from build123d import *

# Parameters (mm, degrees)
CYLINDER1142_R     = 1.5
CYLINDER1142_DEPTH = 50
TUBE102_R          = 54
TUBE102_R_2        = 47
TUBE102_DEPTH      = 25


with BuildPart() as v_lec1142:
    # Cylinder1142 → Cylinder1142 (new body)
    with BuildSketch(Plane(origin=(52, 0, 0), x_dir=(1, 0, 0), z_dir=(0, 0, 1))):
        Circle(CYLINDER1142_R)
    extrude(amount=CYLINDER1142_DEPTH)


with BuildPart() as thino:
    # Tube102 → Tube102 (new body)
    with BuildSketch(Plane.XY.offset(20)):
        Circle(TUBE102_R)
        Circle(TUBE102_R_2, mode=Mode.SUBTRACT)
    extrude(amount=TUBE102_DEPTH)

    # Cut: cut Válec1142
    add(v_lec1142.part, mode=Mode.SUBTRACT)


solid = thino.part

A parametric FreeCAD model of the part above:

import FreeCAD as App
import Part
import Sketcher

V = App.Vector
Q = App.Units.Quantity

doc = App.newDocument("Part")
body = doc.addObject("PartDesign::Body", "Body")

# Sketch on XY plane
sketch1 = body.newObject("Sketcher::SketchObject", "Sketch")
sketch1.AttachmentSupport = (doc.getObject("XY_Plane"), [""])
sketch1.MapMode = "FlatFace"
sketch1.addGeometry(Part.Circle(V(52, 0, 0), V(0, 0, 1), 1.5), False)
sketch1.addConstraint([
    Sketcher.Constraint("PointOnObject", 0, 3, -1),
    Sketcher.Constraint("Diameter", 0, Q("3 mm")),
    Sketcher.Constraint("DistanceX", -1, 1, 0, 3, Q("52 mm")),
])
pad1 = body.newObject("PartDesign::Pad", "Pad")
pad1.Profile = sketch1
pad1.Length = 50
body2 = doc.addObject("PartDesign::Body", "Body001")

# Sketch on XY plane
sketch2 = body2.newObject("Sketcher::SketchObject", "Sketch001")
sketch2.AttachmentSupport = (doc.getObject("XY_Plane001"), [""])
sketch2.MapMode = "FlatFace"
sketch2.AttachmentOffset = App.Placement(V(0, 0, 20), App.Rotation())
sketch2.addGeometry([
    Part.Circle(V(0, 0, 0), V(0, 0, 1), 54),
    Part.Circle(V(0, 0, 0), V(0, 0, 1), 47),
], False)
sketch2.addConstraint([
    Sketcher.Constraint("Coincident", 0, 3, -1, 1),
    Sketcher.Constraint("Coincident", 1, 3, -1, 1),
    Sketcher.Constraint("Diameter", 0, Q("108 mm")),
    Sketcher.Constraint("Diameter", 1, Q("94 mm")),
])
pad2 = body2.newObject("PartDesign::Pad", "Pad001")
pad2.Profile = sketch2
pad2.Length = 25
doc.recompute()

boolean = body2.newObject("PartDesign::Boolean", "Boolean")
boolean.Type = "Cut"
boolean.addObjects([body])

doc.recompute()
